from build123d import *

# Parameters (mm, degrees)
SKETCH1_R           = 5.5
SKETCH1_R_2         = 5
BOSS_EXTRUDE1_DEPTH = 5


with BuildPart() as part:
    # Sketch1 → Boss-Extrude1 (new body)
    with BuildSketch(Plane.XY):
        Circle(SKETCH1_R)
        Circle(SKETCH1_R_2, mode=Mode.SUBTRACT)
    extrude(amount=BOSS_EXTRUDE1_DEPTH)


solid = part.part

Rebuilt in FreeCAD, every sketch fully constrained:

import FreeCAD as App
import Part
import Sketcher
from FreeCAD import Vector

doc = App.newDocument("Part")
body = doc.addObject("PartDesign::Body", "Body")

# Sketch on XY plane
sketch1 = body.newObject("Sketcher::SketchObject", "Sketch")
sketch1.AttachmentSupport = (doc.getObject("XY_Plane"), [""])
sketch1.MapMode = "FlatFace"
sketch1.addGeometry(Part.Circle(Vector(0, 0, 0), Vector(0, 0, 1), 6), False)
sketch1.addGeometry(Part.Circle(Vector(0, 0, 0), Vector(0, 0, 1), 5), False)
sketch1.addConstraint(Sketcher.Constraint("Coincident", 0, 3, -1, 1))
sketch1.addConstraint(Sketcher.Constraint("Coincident", 1, 3, -1, 1))
sketch1.addConstraint(Sketcher.Constraint("Diameter", 0, 11.0))
sketch1.addConstraint(Sketcher.Constraint("Diameter", 1, 10.0))
pad1 = body.newObject("PartDesign::Pad", "Pad")
pad1.Profile = sketch1
pad1.Length = 5

doc.recompute()
